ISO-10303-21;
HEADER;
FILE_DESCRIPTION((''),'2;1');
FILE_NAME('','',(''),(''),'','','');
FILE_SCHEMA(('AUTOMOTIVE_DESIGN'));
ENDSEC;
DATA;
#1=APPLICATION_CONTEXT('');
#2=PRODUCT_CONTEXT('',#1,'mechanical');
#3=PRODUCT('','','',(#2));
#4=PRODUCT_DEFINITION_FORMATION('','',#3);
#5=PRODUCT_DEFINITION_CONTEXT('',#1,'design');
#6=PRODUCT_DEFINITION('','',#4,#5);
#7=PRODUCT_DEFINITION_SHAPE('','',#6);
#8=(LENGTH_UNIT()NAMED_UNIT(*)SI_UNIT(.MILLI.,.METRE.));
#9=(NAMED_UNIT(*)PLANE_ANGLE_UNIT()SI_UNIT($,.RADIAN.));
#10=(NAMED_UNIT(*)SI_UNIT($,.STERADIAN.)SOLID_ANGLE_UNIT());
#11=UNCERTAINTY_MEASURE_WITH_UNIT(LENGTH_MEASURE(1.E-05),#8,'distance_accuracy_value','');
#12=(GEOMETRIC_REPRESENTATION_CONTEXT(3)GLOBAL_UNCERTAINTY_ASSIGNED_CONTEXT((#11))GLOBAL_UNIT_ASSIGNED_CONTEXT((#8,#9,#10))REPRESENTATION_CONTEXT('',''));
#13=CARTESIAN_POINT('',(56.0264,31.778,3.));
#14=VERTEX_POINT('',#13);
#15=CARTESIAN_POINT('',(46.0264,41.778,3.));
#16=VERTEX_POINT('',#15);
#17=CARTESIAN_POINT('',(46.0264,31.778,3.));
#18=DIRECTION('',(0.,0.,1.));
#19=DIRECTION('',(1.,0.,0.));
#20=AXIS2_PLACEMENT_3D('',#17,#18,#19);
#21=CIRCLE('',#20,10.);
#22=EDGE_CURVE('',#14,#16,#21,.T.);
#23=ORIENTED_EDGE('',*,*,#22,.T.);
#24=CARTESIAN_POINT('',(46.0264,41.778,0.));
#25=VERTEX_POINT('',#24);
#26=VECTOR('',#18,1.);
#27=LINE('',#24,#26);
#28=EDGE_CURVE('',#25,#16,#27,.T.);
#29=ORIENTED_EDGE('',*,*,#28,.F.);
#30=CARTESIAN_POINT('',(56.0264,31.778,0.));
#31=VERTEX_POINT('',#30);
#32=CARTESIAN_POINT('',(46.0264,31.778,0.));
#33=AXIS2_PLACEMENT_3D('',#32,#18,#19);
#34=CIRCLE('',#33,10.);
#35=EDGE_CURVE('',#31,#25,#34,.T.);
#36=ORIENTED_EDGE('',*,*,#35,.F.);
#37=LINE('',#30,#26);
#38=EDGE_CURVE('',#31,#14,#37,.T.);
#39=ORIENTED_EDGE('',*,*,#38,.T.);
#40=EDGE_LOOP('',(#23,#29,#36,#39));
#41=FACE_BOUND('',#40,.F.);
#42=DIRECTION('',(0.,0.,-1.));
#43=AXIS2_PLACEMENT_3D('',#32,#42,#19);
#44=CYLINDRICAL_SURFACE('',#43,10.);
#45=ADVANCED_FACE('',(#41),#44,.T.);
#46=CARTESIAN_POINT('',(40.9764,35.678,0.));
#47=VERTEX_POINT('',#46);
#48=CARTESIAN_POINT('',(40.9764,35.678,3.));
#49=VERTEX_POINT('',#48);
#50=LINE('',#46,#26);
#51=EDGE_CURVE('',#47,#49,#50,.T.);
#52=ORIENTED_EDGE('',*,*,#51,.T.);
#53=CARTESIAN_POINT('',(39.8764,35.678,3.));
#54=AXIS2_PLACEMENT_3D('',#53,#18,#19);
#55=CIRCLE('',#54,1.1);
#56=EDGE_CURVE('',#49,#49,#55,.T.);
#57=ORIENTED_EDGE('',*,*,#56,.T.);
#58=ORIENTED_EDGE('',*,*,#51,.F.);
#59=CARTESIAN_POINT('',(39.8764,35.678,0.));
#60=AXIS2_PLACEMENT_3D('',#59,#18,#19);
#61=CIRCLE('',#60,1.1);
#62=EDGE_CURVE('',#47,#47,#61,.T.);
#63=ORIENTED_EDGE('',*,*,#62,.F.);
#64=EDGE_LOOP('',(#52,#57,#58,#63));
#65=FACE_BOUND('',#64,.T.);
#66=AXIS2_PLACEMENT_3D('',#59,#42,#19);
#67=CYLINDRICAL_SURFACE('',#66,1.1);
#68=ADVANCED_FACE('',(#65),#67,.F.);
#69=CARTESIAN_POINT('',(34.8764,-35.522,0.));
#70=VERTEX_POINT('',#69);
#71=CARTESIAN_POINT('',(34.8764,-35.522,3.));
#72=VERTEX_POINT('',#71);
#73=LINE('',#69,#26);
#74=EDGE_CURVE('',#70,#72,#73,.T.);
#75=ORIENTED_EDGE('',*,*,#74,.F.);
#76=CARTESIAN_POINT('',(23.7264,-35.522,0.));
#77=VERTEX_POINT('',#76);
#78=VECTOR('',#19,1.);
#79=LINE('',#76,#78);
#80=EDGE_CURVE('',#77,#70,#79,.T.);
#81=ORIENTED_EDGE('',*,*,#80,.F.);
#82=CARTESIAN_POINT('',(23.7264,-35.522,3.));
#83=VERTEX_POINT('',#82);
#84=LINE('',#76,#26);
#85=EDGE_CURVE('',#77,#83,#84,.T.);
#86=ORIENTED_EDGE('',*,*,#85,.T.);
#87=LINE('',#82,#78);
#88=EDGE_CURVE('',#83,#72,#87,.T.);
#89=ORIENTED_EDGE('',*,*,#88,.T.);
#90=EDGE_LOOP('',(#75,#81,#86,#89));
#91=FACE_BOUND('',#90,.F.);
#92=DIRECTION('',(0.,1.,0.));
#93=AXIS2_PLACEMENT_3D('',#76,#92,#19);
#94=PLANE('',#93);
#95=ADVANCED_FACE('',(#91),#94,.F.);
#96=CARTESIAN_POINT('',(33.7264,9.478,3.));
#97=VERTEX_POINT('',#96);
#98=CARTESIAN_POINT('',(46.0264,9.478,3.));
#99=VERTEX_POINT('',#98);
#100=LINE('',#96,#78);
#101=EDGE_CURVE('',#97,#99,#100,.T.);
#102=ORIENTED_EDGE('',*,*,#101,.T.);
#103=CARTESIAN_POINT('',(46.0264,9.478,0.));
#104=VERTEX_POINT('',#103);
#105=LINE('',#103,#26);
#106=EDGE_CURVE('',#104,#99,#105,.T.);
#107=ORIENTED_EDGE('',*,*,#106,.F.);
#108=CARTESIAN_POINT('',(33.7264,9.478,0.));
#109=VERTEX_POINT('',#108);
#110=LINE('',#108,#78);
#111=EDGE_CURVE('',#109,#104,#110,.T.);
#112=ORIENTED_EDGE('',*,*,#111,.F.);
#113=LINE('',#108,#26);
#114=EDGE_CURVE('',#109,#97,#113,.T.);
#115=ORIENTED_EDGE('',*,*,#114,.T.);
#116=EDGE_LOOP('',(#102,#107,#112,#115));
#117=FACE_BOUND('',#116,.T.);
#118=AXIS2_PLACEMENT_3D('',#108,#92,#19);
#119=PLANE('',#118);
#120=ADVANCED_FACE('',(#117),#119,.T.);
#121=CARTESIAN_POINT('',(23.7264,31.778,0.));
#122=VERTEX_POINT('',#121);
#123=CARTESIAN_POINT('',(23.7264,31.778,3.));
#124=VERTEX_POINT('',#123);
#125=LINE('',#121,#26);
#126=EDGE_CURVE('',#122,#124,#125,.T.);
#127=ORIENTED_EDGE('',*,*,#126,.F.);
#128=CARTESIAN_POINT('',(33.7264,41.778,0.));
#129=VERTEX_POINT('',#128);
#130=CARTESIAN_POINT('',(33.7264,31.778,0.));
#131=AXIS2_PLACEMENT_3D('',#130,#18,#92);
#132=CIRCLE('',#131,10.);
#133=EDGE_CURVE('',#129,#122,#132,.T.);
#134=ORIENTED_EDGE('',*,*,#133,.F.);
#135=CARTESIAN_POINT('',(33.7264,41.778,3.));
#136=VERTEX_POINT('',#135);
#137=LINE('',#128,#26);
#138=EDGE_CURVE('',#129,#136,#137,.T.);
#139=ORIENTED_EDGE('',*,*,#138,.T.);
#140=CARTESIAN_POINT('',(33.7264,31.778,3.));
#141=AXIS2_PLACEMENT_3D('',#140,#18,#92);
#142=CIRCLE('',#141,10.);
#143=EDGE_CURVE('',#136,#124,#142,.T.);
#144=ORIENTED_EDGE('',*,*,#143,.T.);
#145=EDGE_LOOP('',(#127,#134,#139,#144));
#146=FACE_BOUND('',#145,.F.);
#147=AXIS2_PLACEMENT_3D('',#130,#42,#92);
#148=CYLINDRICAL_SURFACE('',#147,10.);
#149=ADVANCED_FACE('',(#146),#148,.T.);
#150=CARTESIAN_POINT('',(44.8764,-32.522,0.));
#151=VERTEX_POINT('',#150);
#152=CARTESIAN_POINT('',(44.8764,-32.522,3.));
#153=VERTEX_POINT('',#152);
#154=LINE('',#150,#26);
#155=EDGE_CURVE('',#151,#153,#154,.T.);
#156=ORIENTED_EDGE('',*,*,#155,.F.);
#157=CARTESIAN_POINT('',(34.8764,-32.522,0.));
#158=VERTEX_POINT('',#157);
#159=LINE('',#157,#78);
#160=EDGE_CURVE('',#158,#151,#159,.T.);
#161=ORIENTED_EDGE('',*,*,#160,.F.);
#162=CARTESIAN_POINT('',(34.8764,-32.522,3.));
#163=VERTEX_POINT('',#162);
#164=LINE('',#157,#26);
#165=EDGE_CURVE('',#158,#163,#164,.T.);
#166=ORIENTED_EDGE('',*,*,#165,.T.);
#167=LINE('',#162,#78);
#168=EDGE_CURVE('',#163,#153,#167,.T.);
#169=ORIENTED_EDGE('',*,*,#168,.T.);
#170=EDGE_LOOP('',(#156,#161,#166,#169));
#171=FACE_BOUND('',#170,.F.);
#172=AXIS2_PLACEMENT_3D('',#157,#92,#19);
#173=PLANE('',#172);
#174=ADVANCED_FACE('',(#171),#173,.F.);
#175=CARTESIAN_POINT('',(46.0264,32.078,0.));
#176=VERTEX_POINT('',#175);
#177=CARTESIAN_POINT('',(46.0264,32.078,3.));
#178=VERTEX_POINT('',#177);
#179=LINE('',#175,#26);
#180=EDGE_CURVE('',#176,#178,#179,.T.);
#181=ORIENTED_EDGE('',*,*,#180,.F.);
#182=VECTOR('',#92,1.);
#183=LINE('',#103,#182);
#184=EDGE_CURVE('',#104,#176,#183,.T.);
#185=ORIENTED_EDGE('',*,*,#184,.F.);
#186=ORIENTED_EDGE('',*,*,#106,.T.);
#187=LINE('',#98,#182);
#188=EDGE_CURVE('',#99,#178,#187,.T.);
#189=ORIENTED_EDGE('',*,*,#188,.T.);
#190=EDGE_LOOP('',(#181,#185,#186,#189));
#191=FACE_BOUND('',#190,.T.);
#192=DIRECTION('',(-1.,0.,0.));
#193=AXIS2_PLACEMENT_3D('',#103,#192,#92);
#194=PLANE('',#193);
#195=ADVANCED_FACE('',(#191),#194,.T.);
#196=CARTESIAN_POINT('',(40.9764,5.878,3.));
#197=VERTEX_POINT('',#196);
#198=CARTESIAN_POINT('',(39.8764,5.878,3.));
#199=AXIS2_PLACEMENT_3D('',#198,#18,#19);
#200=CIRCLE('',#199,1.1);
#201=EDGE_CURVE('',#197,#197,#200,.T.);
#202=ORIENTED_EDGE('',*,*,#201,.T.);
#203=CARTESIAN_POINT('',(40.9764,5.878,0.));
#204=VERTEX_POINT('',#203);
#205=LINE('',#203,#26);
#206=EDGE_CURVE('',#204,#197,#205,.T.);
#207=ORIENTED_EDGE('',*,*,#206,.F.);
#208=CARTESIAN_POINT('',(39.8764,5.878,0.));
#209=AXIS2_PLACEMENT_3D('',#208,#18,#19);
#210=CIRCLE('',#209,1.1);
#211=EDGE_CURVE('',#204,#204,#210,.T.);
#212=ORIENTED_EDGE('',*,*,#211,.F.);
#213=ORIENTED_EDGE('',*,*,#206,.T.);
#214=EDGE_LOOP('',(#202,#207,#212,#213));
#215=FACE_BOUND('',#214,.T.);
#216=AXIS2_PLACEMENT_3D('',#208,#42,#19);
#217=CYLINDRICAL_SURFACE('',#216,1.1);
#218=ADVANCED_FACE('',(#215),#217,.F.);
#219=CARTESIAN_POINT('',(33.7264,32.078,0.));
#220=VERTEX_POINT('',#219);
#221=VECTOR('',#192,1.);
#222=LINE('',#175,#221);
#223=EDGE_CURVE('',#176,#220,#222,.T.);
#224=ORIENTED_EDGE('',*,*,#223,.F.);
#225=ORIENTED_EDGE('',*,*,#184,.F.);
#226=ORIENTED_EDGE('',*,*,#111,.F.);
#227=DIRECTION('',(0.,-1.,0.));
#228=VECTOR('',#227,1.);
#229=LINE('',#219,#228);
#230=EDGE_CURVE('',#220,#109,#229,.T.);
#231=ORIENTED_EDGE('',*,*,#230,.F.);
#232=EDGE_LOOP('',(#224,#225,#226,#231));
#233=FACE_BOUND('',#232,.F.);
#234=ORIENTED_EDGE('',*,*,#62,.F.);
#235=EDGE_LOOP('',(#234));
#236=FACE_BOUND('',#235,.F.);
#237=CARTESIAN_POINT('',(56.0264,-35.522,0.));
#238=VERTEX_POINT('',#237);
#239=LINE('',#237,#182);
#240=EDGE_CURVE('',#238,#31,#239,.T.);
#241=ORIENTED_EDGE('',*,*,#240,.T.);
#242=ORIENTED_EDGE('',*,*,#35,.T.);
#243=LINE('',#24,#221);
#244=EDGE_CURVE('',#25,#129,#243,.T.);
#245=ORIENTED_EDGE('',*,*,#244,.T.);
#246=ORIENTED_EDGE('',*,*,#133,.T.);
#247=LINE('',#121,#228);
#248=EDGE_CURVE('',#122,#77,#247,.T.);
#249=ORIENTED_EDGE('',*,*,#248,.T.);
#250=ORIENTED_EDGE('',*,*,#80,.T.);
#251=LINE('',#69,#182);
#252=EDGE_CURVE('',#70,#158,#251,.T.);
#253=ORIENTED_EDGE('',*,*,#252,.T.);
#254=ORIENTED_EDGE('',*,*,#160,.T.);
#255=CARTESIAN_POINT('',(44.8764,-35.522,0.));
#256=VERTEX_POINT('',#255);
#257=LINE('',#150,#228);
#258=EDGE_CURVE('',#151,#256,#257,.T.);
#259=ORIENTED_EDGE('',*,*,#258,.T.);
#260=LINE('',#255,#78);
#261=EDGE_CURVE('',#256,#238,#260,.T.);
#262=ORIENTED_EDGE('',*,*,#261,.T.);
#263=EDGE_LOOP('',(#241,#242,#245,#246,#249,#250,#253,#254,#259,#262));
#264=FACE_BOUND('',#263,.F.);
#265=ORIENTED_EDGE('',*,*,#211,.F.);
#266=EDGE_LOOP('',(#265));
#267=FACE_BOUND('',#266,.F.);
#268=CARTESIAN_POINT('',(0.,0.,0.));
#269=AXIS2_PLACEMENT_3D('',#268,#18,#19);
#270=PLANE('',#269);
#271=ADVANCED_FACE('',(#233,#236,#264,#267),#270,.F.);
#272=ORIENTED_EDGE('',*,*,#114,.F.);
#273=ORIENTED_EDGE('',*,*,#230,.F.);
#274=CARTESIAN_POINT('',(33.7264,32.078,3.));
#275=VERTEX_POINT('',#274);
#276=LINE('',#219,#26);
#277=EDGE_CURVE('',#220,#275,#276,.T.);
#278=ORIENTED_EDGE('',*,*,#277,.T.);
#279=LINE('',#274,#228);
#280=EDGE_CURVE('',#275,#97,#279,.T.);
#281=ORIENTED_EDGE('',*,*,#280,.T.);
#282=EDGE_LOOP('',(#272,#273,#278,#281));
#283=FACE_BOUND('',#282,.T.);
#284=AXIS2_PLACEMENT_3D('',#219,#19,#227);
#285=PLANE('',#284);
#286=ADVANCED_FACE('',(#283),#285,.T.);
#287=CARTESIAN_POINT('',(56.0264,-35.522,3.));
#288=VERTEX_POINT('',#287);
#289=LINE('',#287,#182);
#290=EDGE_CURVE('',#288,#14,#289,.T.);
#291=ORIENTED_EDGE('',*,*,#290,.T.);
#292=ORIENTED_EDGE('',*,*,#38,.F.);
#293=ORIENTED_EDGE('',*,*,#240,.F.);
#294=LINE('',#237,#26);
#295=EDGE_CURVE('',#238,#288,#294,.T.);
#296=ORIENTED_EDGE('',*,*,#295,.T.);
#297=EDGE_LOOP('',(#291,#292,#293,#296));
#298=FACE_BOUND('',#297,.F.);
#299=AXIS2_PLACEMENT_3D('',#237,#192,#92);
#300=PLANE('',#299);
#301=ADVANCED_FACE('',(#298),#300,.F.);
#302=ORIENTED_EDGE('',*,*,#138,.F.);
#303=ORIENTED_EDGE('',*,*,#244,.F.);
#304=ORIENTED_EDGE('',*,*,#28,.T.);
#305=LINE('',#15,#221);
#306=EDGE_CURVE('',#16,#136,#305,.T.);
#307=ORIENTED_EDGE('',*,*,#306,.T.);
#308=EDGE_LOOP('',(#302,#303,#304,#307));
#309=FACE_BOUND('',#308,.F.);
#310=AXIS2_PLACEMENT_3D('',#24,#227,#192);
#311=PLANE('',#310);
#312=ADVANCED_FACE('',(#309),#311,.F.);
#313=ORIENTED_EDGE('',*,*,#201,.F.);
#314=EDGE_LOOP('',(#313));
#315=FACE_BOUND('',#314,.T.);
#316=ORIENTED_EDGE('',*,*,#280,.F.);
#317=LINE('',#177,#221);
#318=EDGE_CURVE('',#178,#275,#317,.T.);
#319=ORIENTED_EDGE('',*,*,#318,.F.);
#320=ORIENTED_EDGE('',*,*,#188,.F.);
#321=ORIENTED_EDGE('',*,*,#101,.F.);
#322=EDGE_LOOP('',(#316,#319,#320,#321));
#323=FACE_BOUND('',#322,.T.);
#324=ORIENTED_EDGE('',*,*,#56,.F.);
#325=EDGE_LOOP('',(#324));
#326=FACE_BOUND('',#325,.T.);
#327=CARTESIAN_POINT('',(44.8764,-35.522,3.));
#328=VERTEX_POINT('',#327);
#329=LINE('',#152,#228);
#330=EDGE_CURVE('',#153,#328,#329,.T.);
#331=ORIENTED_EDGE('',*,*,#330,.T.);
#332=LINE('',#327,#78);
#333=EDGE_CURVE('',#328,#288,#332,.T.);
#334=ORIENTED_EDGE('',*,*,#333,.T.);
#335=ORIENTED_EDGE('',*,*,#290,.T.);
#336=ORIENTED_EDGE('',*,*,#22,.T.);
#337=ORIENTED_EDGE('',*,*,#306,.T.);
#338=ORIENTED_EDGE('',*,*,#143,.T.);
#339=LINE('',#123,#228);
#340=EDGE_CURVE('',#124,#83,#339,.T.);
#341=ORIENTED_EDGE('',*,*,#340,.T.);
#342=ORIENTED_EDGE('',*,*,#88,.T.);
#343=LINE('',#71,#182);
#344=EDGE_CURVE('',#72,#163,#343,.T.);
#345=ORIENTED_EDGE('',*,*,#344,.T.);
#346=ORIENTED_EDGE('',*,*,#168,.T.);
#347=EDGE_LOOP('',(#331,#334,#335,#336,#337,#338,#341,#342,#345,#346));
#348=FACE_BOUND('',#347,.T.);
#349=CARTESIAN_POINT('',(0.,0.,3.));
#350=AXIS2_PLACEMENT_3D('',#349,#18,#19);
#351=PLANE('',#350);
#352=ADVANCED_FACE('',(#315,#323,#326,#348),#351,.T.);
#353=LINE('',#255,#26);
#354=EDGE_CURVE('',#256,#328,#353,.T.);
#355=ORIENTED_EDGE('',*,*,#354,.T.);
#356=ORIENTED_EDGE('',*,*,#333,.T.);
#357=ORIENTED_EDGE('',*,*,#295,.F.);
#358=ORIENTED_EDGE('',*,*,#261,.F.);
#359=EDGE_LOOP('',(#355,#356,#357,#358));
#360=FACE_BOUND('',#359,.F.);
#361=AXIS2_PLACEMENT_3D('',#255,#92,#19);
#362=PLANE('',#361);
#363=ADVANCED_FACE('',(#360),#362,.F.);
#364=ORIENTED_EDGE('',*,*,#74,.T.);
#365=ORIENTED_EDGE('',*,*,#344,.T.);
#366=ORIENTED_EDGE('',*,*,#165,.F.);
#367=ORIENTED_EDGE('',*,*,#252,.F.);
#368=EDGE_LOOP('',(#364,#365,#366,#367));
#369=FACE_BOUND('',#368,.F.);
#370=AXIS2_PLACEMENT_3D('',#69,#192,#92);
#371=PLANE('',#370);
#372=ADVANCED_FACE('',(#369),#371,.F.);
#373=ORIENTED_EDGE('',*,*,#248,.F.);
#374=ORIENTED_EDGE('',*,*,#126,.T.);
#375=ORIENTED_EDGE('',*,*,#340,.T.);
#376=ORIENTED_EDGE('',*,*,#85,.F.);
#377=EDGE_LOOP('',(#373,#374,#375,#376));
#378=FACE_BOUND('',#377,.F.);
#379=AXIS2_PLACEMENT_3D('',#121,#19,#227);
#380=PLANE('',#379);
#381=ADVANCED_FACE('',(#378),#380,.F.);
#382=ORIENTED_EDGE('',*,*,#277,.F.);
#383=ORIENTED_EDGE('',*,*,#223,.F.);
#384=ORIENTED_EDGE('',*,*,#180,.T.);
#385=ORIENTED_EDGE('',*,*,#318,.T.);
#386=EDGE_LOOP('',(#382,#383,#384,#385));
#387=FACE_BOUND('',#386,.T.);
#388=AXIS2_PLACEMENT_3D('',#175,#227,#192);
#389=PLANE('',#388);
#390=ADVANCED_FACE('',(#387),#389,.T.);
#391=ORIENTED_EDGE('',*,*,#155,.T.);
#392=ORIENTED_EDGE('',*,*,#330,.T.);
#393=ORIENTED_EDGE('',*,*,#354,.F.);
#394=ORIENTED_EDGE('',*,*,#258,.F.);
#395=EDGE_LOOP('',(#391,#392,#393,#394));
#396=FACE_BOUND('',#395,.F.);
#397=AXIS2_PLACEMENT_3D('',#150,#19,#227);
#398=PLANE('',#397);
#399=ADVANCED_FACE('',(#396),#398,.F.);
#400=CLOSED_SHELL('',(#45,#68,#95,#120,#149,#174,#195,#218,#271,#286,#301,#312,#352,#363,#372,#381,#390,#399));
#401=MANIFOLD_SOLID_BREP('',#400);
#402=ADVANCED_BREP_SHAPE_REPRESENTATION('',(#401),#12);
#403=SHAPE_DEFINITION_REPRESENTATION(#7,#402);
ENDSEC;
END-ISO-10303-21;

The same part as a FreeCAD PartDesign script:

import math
import FreeCAD as App
import Part
import Sketcher
from FreeCAD import Vector
Q = App.Units.Quantity

doc = App.newDocument("Part")
body = doc.addObject("PartDesign::Body", "Body")

sketch1 = body.newObject("Sketcher::SketchObject", "Sketch")
sketch1.AttachmentSupport = (doc.getObject("XY_Plane"), [""])
sketch1.MapMode = "FlatFace"
sketch1.addGeometry([
    Part.ArcOfCircle(Part.Circle(Vector(46, 31.8, 0), Vector(0, 0, 1), 10), math.radians(0), math.radians(90)),
    Part.LineSegment(Vector(46, 41.8, 0), Vector(33.7, 41.8, 0)),
    Part.ArcOfCircle(Part.Circle(Vector(33.7, 31.8, 0), Vector(0, 0, 1), 10), math.radians(90), math.radians(180)),
    Part.LineSegment(Vector(23.7, 31.8, 0), Vector(23.7, -35.5, 0)),
    Part.LineSegment(Vector(23.7, -35.5, 0), Vector(34.9, -35.5, 0)),
    Part.LineSegment(Vector(34.9, -35.5, 0), Vector(34.9, -32.5, 0)),
    Part.LineSegment(Vector(34.9, -32.5, 0), Vector(44.9, -32.5, 0)),
    Part.LineSegment(Vector(44.9, -32.5, 0), Vector(44.9, -35.5, 0)),
    Part.LineSegment(Vector(44.9, -35.5, 0), Vector(56, -35.5, 0)),
    Part.LineSegment(Vector(56, -35.5, 0), Vector(56, 31.8, 0)),
    Part.Circle(Vector(39.9, 5.9, 0), Vector(0, 0, 1), 1.1),
    Part.Circle(Vector(39.9, 35.7, 0), Vector(0, 0, 1), 1.1),
    Part.LineSegment(Vector(33.7, 32.1, 0), Vector(46, 32.1, 0)),
    Part.LineSegment(Vector(46, 32.1, 0), Vector(46, 9.5, 0)),
    Part.LineSegment(Vector(46, 9.5, 0), Vector(33.7, 9.5, 0)),
    Part.LineSegment(Vector(33.7, 9.5, 0), Vector(33.7, 32.1, 0)),
], False)
sketch1.addConstraint([
    Sketcher.Constraint("Tangent", 0, 2, 1, 1),
    Sketcher.Constraint("Tangent", 1, 2, 2, 1),
    Sketcher.Constraint("Tangent", 2, 2, 3, 1),
    Sketcher.Constraint("Coincident", 3, 2, 4, 1),
    Sketcher.Constraint("Coincident", 4, 2, 5, 1),
    Sketcher.Constraint("Coincident", 5, 2, 6, 1),
    Sketcher.Constraint("Coincident", 6, 2, 7, 1),
    Sketcher.Constraint("Coincident", 7, 2, 8, 1),
    Sketcher.Constraint("Coincident", 8, 2, 9, 1),
    Sketcher.Constraint("Tangent", 9, 2, 0, 1),
    Sketcher.Constraint("Coincident", 12, 2, 13, 1),
    Sketcher.Constraint("Coincident", 13, 2, 14, 1),
    Sketcher.Constraint("Coincident", 14, 2, 15, 1),
    Sketcher.Constraint("Coincident", 15, 2, 12, 1),
    Sketcher.Constraint("Horizontal", 1),
    Sketcher.Constraint("Vertical", 3),
    Sketcher.Constraint("Horizontal", 4),
    Sketcher.Constraint("Vertical", 5),
    Sketcher.Constraint("Horizontal", 6),
    Sketcher.Constraint("Vertical", 7),
    Sketcher.Constraint("Horizontal", 8),
    Sketcher.Constraint("Vertical", 9),
    Sketcher.Constraint("Horizontal", 12),
    Sketcher.Constraint("Vertical", 13),
    Sketcher.Constraint("Horizontal", 14),
    Sketcher.Constraint("Vertical", 15),
    Sketcher.Constraint("Equal", 0, 2),
    Sketcher.Constraint("Equal", 10, 11),
    Sketcher.Constraint("Horizontal", 4, 2, 7, 2),
    Sketcher.Constraint("Vertical", 10, 3, 11, 3),
    Sketcher.Constraint("Vertical", 0, 2, 12, 2),
    Sketcher.Constraint("Vertical", 1, 2, 14, 2),
    Sketcher.Constraint("Equal", 4, 8),
    Sketcher.Constraint("Radius", 0, Q("10 mm")),
    Sketcher.Constraint("Diameter", 10, Q("2.2 mm")),
    Sketcher.Constraint("DistanceX", 6, 1, 6, 2, Q("10 mm")),
    Sketcher.Constraint("DistanceX", 1, 2, 1, 1, Q("12.3 mm")),
    Sketcher.Constraint("DistanceY", 13, 2, 13, 1, Q("22.6 mm")),
    Sketcher.Constraint("DistanceX", 4, 2, 10, 3, Q("5 mm")),
    Sketcher.Constraint("DistanceY", 5, 1, 5, 2, Q("3 mm")),
    Sketcher.Constraint("DistanceY", 3, 2, 3, 1, Q("67.3 mm")),
    Sketcher.Constraint("DistanceY", 10, 3, 0, 3, Q("25.9 mm")),
    Sketcher.Constraint("DistanceY", 2, 3, 11, 3, Q("3.9 mm")),
    Sketcher.Constraint("DistanceY", 0, 3, 12, 2, Q("0.3 mm")),
    Sketcher.Constraint("DistanceY", -1, 1, 0, 3, Q("31.778 mm")),
    Sketcher.Constraint("DistanceX", -1, 1, 0, 3, Q("46.0264 mm")),
])
pad1 = body.newObject("PartDesign::Pad", "Pad")
pad1.Profile = sketch1
pad1.Length = 3

doc.recompute()
